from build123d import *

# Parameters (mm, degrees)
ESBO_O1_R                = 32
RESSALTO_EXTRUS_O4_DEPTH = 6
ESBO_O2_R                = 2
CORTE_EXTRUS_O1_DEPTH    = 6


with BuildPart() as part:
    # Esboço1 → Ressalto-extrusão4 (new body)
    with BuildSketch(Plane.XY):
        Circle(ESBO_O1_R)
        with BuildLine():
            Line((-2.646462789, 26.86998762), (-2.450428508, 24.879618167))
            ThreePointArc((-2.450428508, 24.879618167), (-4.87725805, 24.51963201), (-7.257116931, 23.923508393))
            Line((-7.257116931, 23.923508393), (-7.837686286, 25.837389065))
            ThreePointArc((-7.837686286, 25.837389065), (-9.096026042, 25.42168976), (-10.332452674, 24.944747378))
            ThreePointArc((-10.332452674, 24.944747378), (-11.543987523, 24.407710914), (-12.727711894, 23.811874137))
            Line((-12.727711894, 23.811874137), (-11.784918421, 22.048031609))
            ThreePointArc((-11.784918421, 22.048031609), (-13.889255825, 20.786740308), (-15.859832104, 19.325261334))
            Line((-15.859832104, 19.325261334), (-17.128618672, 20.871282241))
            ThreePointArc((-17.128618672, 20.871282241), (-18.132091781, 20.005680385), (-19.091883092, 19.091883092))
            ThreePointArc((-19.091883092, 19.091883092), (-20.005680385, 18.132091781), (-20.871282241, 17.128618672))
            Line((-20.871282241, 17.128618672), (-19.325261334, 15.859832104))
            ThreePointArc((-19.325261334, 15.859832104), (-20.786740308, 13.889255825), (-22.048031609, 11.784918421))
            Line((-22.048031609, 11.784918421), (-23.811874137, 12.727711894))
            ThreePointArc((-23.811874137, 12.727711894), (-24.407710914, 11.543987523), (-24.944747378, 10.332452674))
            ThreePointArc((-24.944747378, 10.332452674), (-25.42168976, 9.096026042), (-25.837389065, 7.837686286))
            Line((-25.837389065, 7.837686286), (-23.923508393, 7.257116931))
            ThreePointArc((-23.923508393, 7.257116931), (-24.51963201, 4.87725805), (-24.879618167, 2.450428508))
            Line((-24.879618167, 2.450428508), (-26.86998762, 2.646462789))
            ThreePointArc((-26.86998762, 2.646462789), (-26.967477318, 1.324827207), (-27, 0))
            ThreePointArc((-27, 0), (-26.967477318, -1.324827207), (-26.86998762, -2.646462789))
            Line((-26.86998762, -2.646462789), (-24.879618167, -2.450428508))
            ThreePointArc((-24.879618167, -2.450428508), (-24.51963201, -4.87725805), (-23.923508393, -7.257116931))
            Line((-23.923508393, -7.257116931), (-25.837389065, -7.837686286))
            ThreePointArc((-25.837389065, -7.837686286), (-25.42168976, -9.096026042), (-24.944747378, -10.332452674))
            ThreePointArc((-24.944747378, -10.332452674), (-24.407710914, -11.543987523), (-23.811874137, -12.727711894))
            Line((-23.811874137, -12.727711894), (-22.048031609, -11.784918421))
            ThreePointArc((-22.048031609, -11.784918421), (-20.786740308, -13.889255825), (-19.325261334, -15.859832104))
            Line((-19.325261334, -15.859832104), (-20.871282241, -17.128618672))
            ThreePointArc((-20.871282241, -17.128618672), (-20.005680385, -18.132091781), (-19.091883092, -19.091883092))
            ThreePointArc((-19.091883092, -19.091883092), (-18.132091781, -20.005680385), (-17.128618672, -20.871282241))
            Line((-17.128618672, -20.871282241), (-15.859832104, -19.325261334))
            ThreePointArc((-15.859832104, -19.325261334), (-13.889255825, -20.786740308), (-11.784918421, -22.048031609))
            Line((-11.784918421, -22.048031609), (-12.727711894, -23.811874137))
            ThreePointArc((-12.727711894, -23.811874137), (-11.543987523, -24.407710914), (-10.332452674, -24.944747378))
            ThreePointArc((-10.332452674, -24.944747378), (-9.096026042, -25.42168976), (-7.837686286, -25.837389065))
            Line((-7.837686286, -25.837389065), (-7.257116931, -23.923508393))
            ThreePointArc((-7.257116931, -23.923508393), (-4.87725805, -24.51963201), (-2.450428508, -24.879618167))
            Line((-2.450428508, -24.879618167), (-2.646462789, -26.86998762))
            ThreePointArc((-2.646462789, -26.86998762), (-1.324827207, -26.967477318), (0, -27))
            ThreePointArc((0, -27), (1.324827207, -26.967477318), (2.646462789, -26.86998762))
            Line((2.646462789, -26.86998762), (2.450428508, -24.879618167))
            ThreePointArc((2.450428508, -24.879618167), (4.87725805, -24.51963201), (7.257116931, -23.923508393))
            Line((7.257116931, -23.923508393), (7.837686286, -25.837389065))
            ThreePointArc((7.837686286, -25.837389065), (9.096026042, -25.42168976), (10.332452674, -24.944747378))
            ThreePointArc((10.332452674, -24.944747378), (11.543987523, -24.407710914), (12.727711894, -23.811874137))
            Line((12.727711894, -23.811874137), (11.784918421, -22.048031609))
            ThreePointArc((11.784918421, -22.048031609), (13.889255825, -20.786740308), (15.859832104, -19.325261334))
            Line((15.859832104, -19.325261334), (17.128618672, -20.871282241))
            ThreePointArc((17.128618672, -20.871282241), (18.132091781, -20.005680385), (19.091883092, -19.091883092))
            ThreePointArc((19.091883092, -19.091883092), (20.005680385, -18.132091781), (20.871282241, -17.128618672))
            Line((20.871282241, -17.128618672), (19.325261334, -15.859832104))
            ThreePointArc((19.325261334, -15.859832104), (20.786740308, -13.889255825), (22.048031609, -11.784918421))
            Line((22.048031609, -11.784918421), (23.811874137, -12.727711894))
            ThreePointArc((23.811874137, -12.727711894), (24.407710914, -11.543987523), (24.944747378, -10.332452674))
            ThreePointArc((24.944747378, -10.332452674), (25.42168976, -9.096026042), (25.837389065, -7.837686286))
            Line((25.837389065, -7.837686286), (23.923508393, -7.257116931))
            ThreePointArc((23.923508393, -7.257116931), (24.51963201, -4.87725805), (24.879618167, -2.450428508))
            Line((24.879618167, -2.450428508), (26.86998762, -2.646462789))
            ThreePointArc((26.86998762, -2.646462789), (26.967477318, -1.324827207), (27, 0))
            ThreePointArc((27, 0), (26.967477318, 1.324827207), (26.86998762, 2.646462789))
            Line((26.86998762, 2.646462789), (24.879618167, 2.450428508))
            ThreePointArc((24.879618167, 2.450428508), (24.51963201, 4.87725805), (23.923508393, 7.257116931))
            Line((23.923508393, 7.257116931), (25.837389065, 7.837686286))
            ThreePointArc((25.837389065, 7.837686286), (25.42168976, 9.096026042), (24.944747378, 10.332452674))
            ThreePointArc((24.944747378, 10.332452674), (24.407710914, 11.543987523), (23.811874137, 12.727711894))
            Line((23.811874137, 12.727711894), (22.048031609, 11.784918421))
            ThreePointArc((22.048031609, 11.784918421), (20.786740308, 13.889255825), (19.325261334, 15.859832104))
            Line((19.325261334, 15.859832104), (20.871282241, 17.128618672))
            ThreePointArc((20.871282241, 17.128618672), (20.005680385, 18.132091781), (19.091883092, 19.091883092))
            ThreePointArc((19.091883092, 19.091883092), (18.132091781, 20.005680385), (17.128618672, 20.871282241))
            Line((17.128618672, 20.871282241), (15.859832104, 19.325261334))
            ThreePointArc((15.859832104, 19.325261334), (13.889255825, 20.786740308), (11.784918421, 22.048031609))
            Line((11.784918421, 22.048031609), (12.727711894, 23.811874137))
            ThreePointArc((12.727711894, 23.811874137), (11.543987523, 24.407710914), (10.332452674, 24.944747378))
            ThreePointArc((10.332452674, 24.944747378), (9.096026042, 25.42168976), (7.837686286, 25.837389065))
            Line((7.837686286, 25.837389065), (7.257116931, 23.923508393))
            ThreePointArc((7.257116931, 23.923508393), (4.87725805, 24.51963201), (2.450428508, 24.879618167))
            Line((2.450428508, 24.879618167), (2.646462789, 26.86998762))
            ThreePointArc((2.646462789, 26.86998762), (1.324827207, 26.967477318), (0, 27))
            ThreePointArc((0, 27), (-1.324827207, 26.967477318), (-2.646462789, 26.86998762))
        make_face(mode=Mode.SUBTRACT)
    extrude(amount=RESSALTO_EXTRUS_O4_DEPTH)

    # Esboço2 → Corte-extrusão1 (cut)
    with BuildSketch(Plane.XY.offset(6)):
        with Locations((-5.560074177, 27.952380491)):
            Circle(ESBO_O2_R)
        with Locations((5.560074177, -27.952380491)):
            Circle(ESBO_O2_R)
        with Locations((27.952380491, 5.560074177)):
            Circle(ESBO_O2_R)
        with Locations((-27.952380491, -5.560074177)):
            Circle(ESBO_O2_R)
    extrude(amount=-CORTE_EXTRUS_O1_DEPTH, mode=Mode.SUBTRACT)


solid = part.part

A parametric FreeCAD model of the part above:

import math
import FreeCAD as App
import Part
import Sketcher

V = App.Vector

doc = App.newDocument("Part")
body = doc.addObject("PartDesign::Body", "Body")

# Sketch on XY plane
sketch1 = body.newObject("Sketcher::SketchObject", "Sketch")
sketch1.AttachmentSupport = (doc.getObject("XY_Plane"), [""])
sketch1.MapMode = "FlatFace"
sketch1.addGeometry(Part.Circle(V(0, 0, 0), V(0, 0, 1), 32), False)
sketch1.addGeometry(Part.LineSegment(V(-2.5, 24.9, 0), V(-2.6, 26.9, 0)), False)
sketch1.addGeometry(Part.ArcOfCircle(Part.Circle(V(0, 0, 0), V(0, 0, 1), 27), math.radians(90), math.radians(95.63)), False)
sketch1.addGeometry(Part.ArcOfCircle(Part.Circle(V(0, 0, 0), V(0, 0, 1), 27), math.radians(84.37), math.radians(90)), False)
sketch1.addGeometry(Part.LineSegment(V(2.6, 26.9, 0), V(2.5, 24.9, 0)), False)
sketch1.addGeometry(Part.ArcOfCircle(Part.Circle(V(0, 0, 0), V(0, 0, 1), 25), math.radians(73.12), math.radians(84.37)), False)
sketch1.addGeometry(Part.LineSegment(V(7.3, 23.9, 0), V(7.8, 25.8, 0)), False)
sketch1.addGeometry(Part.ArcOfCircle(Part.Circle(V(0, 0, 0), V(0, 0, 1), 27), math.radians(67.5), math.radians(73.12)), False)
sketch1.addGeometry(Part.ArcOfCircle(Part.Circle(V(0, 0, 0), V(0, 0, 1), 27), math.radians(61.87), math.radians(67.5)), False)
sketch1.addGeometry(Part.LineSegment(V(12.7, 23.8, 0), V(11.8, 22, 0)), False)
sketch1.addGeometry(Part.ArcOfCircle(Part.Circle(V(0, 0, 0), V(0, 0, 1), 25), math.radians(50.62), math.radians(61.87)), False)
sketch1.addGeometry(Part.LineSegment(V(15.9, 19.3, 0), V(17.1, 20.9, 0)), False)
sketch1.addGeometry(Part.ArcOfCircle(Part.Circle(V(0, 0, 0), V(0, 0, 1), 27), math.radians(45), math.radians(50.63)), False)
sketch1.addGeometry(Part.ArcOfCircle(Part.Circle(V(0, 0, 0), V(0, 0, 1), 27), math.radians(39.37), math.radians(45)), False)
sketch1.addGeometry(Part.LineSegment(V(20.9, 17.1, 0), V(19.3, 15.9, 0)), False)
sketch1.addGeometry(Part.ArcOfCircle(Part.Circle(V(0, 0, 0), V(0, 0, 1), 25), math.radians(28.13), math.radians(39.38)), False)
sketch1.addGeometry(Part.LineSegment(V(22, 11.8, 0), V(23.8, 12.7, 0)), False)
sketch1.addGeometry(Part.ArcOfCircle(Part.Circle(V(0, 0, 0), V(0, 0, 1), 27), math.radians(22.5), math.radians(28.13)), False)
sketch1.addGeometry(Part.ArcOfCircle(Part.Circle(V(0, 0, 0), V(0, 0, 1), 27), math.radians(16.88), math.radians(22.5)), False)
sketch1.addGeometry(Part.LineSegment(V(25.8, 7.8, 0), V(23.9, 7.3, 0)), False)
sketch1.addGeometry(Part.ArcOfCircle(Part.Circle(V(0, 0, 0), V(0, 0, 1), 25), math.radians(5.63), math.radians(16.88)), False)
sketch1.addGeometry(Part.LineSegment(V(24.9, 2.5, 0), V(26.9, 2.6, 0)), False)
sketch1.addGeometry(Part.ArcOfCircle(Part.Circle(V(0, 0, 0), V(0, 0, 1), 27), math.radians(0), math.radians(5.63)), False)
sketch1.addGeometry(Part.ArcOfCircle(Part.Circle(V(0, 0, 0), V(0, 0, 1), 27), math.radians(-5.63), math.radians(0)), False)
sketch1.addGeometry(Part.LineSegment(V(26.9, -2.6, 0), V(24.9, -2.5, 0)), False)
sketch1.addGeometry(Part.ArcOfCircle(Part.Circle(V(0, 0, 0), V(0, 0, 1), 25), math.radians(-16.88), math.radians(-5.63)), False)
sketch1.addGeometry(Part.LineSegment(V(23.9, -7.3, 0), V(25.8, -7.8, 0)), False)
sketch1.addGeometry(Part.ArcOfCircle(Part.Circle(V(0, 0, 0), V(0, 0, 1), 27), math.radians(-22.5), math.radians(-16.88)), False)
sketch1.addGeometry(Part.ArcOfCircle(Part.Circle(V(0, 0, 0), V(0, 0, 1), 27), math.radians(-28.13), math.radians(-22.5)), False)
sketch1.addGeometry(Part.LineSegment(V(23.8, -12.7, 0), V(22, -11.8, 0)), False)
sketch1.addGeometry(Part.ArcOfCircle(Part.Circle(V(0, 0, 0), V(0, 0, 1), 25), math.radians(-39.38), math.radians(-28.13)), False)
sketch1.addGeometry(Part.LineSegment(V(19.3, -15.9, 0), V(20.9, -17.1, 0)), False)
sketch1.addGeometry(Part.ArcOfCircle(Part.Circle(V(0, 0, 0), V(0, 0, 1), 27), math.radians(-45), math.radians(-39.37)), False)
sketch1.addGeometry(Part.ArcOfCircle(Part.Circle(V(0, 0, 0), V(0, 0, 1), 27), math.radians(-50.63), math.radians(-45)), False)
sketch1.addGeometry(Part.LineSegment(V(17.1, -20.9, 0), V(15.9, -19.3, 0)), False)
sketch1.addGeometry(Part.ArcOfCircle(Part.Circle(V(0, 0, 0), V(0, 0, 1), 25), math.radians(-61.87), math.radians(-50.62)), False)
sketch1.addGeometry(Part.LineSegment(V(11.8, -22, 0), V(12.7, -23.8, 0)), False)
sketch1.addGeometry(Part.ArcOfCircle(Part.Circle(V(0, 0, 0), V(0, 0, 1), 27), math.radians(-67.5), math.radians(-61.87)), False)
sketch1.addGeometry(Part.ArcOfCircle(Part.Circle(V(0, 0, 0), V(0, 0, 1), 27), math.radians(-73.12), math.radians(-67.5)), False)
sketch1.addGeometry(Part.LineSegment(V(7.8, -25.8, 0), V(7.3, -23.9, 0)), False)
sketch1.addGeometry(Part.ArcOfCircle(Part.Circle(V(0, 0, 0), V(0, 0, 1), 25), math.radians(-84.37), math.radians(-73.12)), False)
sketch1.addGeometry(Part.LineSegment(V(2.5, -24.9, 0), V(2.6, -26.9, 0)), False)
sketch1.addGeometry(Part.ArcOfCircle(Part.Circle(V(0, 0, 0), V(0, 0, 1), 27), math.radians(-90), math.radians(-84.37)), False)
sketch1.addGeometry(Part.ArcOfCircle(Part.Circle(V(0, 0, 0), V(0, 0, 1), 27), math.radians(-95.63), math.radians(-90)), False)
sketch1.addGeometry(Part.LineSegment(V(-2.6, -26.9, 0), V(-2.5, -24.9, 0)), False)
sketch1.addGeometry(Part.ArcOfCircle(Part.Circle(V(0, 0, 0), V(0, 0, 1), 25), math.radians(-106.88), math.radians(-95.63)), False)
sketch1.addGeometry(Part.LineSegment(V(-7.3, -23.9, 0), V(-7.8, -25.8, 0)), False)
sketch1.addGeometry(Part.ArcOfCircle(Part.Circle(V(0, 0, 0), V(0, 0, 1), 27), math.radians(-112.5), math.radians(-106.88)), False)
sketch1.addGeometry(Part.ArcOfCircle(Part.Circle(V(0, 0, 0), V(0, 0, 1), 27), math.radians(-118.13), math.radians(-112.5)), False)
sketch1.addGeometry(Part.LineSegment(V(-12.7, -23.8, 0), V(-11.8, -22, 0)), False)
sketch1.addGeometry(Part.ArcOfCircle(Part.Circle(V(0, 0, 0), V(0, 0, 1), 25), math.radians(-129.38), math.radians(-118.13)), False)
sketch1.addGeometry(Part.LineSegment(V(-15.9, -19.3, 0), V(-17.1, -20.9, 0)), False)
sketch1.addGeometry(Part.ArcOfCircle(Part.Circle(V(0, 0, 0), V(0, 0, 1), 27), math.radians(-135), math.radians(-129.37)), False)
sketch1.addGeometry(Part.ArcOfCircle(Part.Circle(V(0, 0, 0), V(0, 0, 1), 27), math.radians(-140.63), math.radians(-135)), False)
sketch1.addGeometry(Part.LineSegment(V(-20.9, -17.1, 0), V(-19.3, -15.9, 0)), False)
sketch1.addGeometry(Part.ArcOfCircle(Part.Circle(V(0, 0, 0), V(0, 0, 1), 25), math.radians(-151.87), math.radians(-140.62)), False)
sketch1.addGeometry(Part.LineSegment(V(-22, -11.8, 0), V(-23.8, -12.7, 0)), False)
sketch1.addGeometry(Part.ArcOfCircle(Part.Circle(V(0, 0, 0), V(0, 0, 1), 27), math.radians(-157.5), math.radians(-151.87)), False)
sketch1.addGeometry(Part.ArcOfCircle(Part.Circle(V(0, 0, 0), V(0, 0, 1), 27), math.radians(-163.12), math.radians(-157.5)), False)
sketch1.addGeometry(Part.LineSegment(V(-25.8, -7.8, 0), V(-23.9, -7.3, 0)), False)
sketch1.addGeometry(Part.ArcOfCircle(Part.Circle(V(0, 0, 0), V(0, 0, 1), 25), math.radians(-174.37), math.radians(-163.12)), False)
sketch1.addGeometry(Part.LineSegment(V(-24.9, -2.5, 0), V(-26.9, -2.6, 0)), False)
sketch1.addGeometry(Part.ArcOfCircle(Part.Circle(V(0, 0, 0), V(0, 0, 1), 27), math.radians(180), math.radians(185.63)), False)
sketch1.addGeometry(Part.ArcOfCircle(Part.Circle(V(0, 0, 0), V(0, 0, 1), 27), math.radians(174.37), math.radians(180)), False)
sketch1.addGeometry(Part.LineSegment(V(-26.9, 2.6, 0), V(-24.9, 2.5, 0)), False)
sketch1.addGeometry(Part.ArcOfCircle(Part.Circle(V(0, 0, 0), V(0, 0, 1), 25), math.radians(163.12), math.radians(174.37)), False)
sketch1.addGeometry(Part.LineSegment(V(-23.9, 7.3, 0), V(-25.8, 7.8, 0)), False)
sketch1.addGeometry(Part.ArcOfCircle(Part.Circle(V(0, 0, 0), V(0, 0, 1), 27), math.radians(157.5), math.radians(163.12)), False)
sketch1.addGeometry(Part.ArcOfCircle(Part.Circle(V(0, 0, 0), V(0, 0, 1), 27), math.radians(151.87), math.radians(157.5)), False)
sketch1.addGeometry(Part.LineSegment(V(-23.8, 12.7, 0), V(-22, 11.8, 0)), False)
sketch1.addGeometry(Part.ArcOfCircle(Part.Circle(V(0, 0, 0), V(0, 0, 1), 25), math.radians(140.62), math.radians(151.87)), False)
sketch1.addGeometry(Part.LineSegment(V(-19.3, 15.9, 0), V(-20.9, 17.1, 0)), False)
sketch1.addGeometry(Part.ArcOfCircle(Part.Circle(V(0, 0, 0), V(0, 0, 1), 27), math.radians(135), math.radians(140.63)), False)
sketch1.addGeometry(Part.ArcOfCircle(Part.Circle(V(0, 0, 0), V(0, 0, 1), 27), math.radians(129.37), math.radians(135)), False)
sketch1.addGeometry(Part.LineSegment(V(-17.1, 20.9, 0), V(-15.9, 19.3, 0)), False)
sketch1.addGeometry(Part.ArcOfCircle(Part.Circle(V(0, 0, 0), V(0, 0, 1), 25), math.radians(118.13), math.radians(129.38)), False)
sketch1.addGeometry(Part.LineSegment(V(-11.8, 22, 0), V(-12.7, 23.8, 0)), False)
sketch1.addGeometry(Part.ArcOfCircle(Part.Circle(V(0, 0, 0), V(0, 0, 1), 27), math.radians(112.5), math.radians(118.13)), False)
sketch1.addGeometry(Part.ArcOfCircle(Part.Circle(V(0, 0, 0), V(0, 0, 1), 27), math.radians(106.88), math.radians(112.5)), False)
sketch1.addGeometry(Part.LineSegment(V(-7.8, 25.8, 0), V(-7.3, 23.9, 0)), False)
sketch1.addGeometry(Part.ArcOfCircle(Part.Circle(V(0, 0, 0), V(0, 0, 1), 25), math.radians(95.63), math.radians(106.88)), False)
sketch1.addConstraint(Sketcher.Constraint("Coincident", 1, 2, 2, 2))
sketch1.addConstraint(Sketcher.Constraint("Tangent", 2, 1, 3, 2))
sketch1.addConstraint(Sketcher.Constraint("Coincident", 3, 1, 4, 1))
sketch1.addConstraint(Sketcher.Constraint("Coincident", 4, 2, 5, 2))
sketch1.addConstraint(Sketcher.Constraint("Coincident", 5, 1, 6, 1))
sketch1.addConstraint(Sketcher.Constraint("Coincident", 6, 2, 7, 2))
sketch1.addConstraint(Sketcher.Constraint("Tangent", 7, 1, 8, 2))
sketch1.addConstraint(Sketcher.Constraint("Coincident", 8, 1, 9, 1))
sketch1.addConstraint(Sketcher.Constraint("Coincident", 9, 2, 10, 2))
sketch1.addConstraint(Sketcher.Constraint("Coincident", 10, 1, 11, 1))
sketch1.addConstraint(Sketcher.Constraint("Coincident", 11, 2, 12, 2))
sketch1.addConstraint(Sketcher.Constraint("Tangent", 12, 1, 13, 2))
sketch1.addConstraint(Sketcher.Constraint("Coincident", 13, 1, 14, 1))
sketch1.addConstraint(Sketcher.Constraint("Coincident", 14, 2, 15, 2))
sketch1.addConstraint(Sketcher.Constraint("Coincident", 15, 1, 16, 1))
sketch1.addConstraint(Sketcher.Constraint("Coincident", 16, 2, 17, 2))
sketch1.addConstraint(Sketcher.Constraint("Tangent", 17, 1, 18, 2))
sketch1.addConstraint(Sketcher.Constraint("Coincident", 18, 1, 19, 1))
sketch1.addConstraint(Sketcher.Constraint("Coincident", 19, 2, 20, 2))
sketch1.addConstraint(Sketcher.Constraint("Coincident", 20, 1, 21, 1))
sketch1.addConstraint(Sketcher.Constraint("Coincident", 21, 2, 22, 2))
sketch1.addConstraint(Sketcher.Constraint("Tangent", 22, 1, 23, 2))
sketch1.addConstraint(Sketcher.Constraint("Coincident", 23, 1, 24, 1))
sketch1.addConstraint(Sketcher.Constraint("Coincident", 24, 2, 25, 2))
sketch1.addConstraint(Sketcher.Constraint("Coincident", 25, 1, 26, 1))
sketch1.addConstraint(Sketcher.Constraint("Coincident", 26, 2, 27, 2))
sketch1.addConstraint(Sketcher.Constraint("Tangent", 27, 1, 28, 2))
sketch1.addConstraint(Sketcher.Constraint("Coincident", 28, 1, 29, 1))
sketch1.addConstraint(Sketcher.Constraint("Coincident", 29, 2, 30, 2))
sketch1.addConstraint(Sketcher.Constraint("Coincident", 30, 1, 31, 1))
sketch1.addConstraint(Sketcher.Constraint("Coincident", 31, 2, 32, 2))
sketch1.addConstraint(Sketcher.Constraint("Tangent", 32, 1, 33, 2))
sketch1.addConstraint(Sketcher.Constraint("Coincident", 33, 1, 34, 1))
sketch1.addConstraint(Sketcher.Constraint("Coincident", 34, 2, 35, 2))
sketch1.addConstraint(Sketcher.Constraint("Coincident", 35, 1, 36, 1))
sketch1.addConstraint(Sketcher.Constraint("Coincident", 36, 2, 37, 2))
sketch1.addConstraint(Sketcher.Constraint("Tangent", 37, 1, 38, 2))
sketch1.addConstraint(Sketcher.Constraint("Coincident", 38, 1, 39, 1))
sketch1.addConstraint(Sketcher.Constraint("Coincident", 39, 2, 40, 2))
sketch1.addConstraint(Sketcher.Constraint("Coincident", 40, 1, 41, 1))
sketch1.addConstraint(Sketcher.Constraint("Coincident", 41, 2, 42, 2))
sketch1.addConstraint(Sketcher.Constraint("Tangent", 42, 1, 43, 2))
sketch1.addConstraint(Sketcher.Constraint("Coincident", 43, 1, 44, 1))
sketch1.addConstraint(Sketcher.Constraint("Coincident", 44, 2, 45, 2))
sketch1.addConstraint(Sketcher.Constraint("Coincident", 45, 1, 46, 1))
sketch1.addConstraint(Sketcher.Constraint("Coincident", 46, 2, 47, 2))
sketch1.addConstraint(Sketcher.Constraint("Tangent", 47, 1, 48, 2))
sketch1.addConstraint(Sketcher.Constraint("Coincident", 48, 1, 49, 1))
sketch1.addConstraint(Sketcher.Constraint("Coincident", 49, 2, 50, 2))
sketch1.addConstraint(Sketcher.Constraint("Coincident", 50, 1, 51, 1))
sketch1.addConstraint(Sketcher.Constraint("Coincident", 51, 2, 52, 2))
sketch1.addConstraint(Sketcher.Constraint("Tangent", 52, 1, 53, 2))
sketch1.addConstraint(Sketcher.Constraint("Coincident", 53, 1, 54, 1))
sketch1.addConstraint(Sketcher.Constraint("Coincident", 54, 2, 55, 2))
sketch1.addConstraint(Sketcher.Constraint("Coincident", 55, 1, 56, 1))
sketch1.addConstraint(Sketcher.Constraint("Coincident", 56, 2, 57, 2))
sketch1.addConstraint(Sketcher.Constraint("Tangent", 57, 1, 58, 2))
sketch1.addConstraint(Sketcher.Constraint("Coincident", 58, 1, 59, 1))
sketch1.addConstraint(Sketcher.Constraint("Coincident", 59, 2, 60, 2))
sketch1.addConstraint(Sketcher.Constraint("Coincident", 60, 1, 61, 1))
sketch1.addConstraint(Sketcher.Constraint("Coincident", 61, 2, 62, 2))
sketch1.addConstraint(Sketcher.Constraint("Tangent", 62, 1, 63, 2))
sketch1.addConstraint(Sketcher.Constraint("Coincident", 63, 1, 64, 1))
sketch1.addConstraint(Sketcher.Constraint("Coincident", 64, 2, 65, 2))
sketch1.addConstraint(Sketcher.Constraint("Coincident", 65, 1, 66, 1))
sketch1.addConstraint(Sketcher.Constraint("Coincident", 66, 2, 67, 2))
sketch1.addConstraint(Sketcher.Constraint("Tangent", 67, 1, 68, 2))
sketch1.addConstraint(Sketcher.Constraint("Coincident", 68, 1, 69, 1))
sketch1.addConstraint(Sketcher.Constraint("Coincident", 69, 2, 70, 2))
sketch1.addConstraint(Sketcher.Constraint("Coincident", 70, 1, 71, 1))
sketch1.addConstraint(Sketcher.Constraint("Coincident", 71, 2, 72, 2))
sketch1.addConstraint(Sketcher.Constraint("Tangent", 72, 1, 73, 2))
sketch1.addConstraint(Sketcher.Constraint("Coincident", 73, 1, 74, 1))
sketch1.addConstraint(Sketcher.Constraint("Coincident", 74, 2, 75, 2))
sketch1.addConstraint(Sketcher.Constraint("Coincident", 75, 1, 76, 1))
sketch1.addConstraint(Sketcher.Constraint("Coincident", 76, 2, 77, 2))
sketch1.addConstraint(Sketcher.Constraint("Tangent", 77, 1, 78, 2))
sketch1.addConstraint(Sketcher.Constraint("Coincident", 78, 1, 79, 1))
sketch1.addConstraint(Sketcher.Constraint("Coincident", 79, 2, 80, 2))
sketch1.addConstraint(Sketcher.Constraint("Coincident", 80, 1, 1, 1))
sketch1.addConstraint(Sketcher.Constraint("Coincident", 0, 3, -1, 1))
sketch1.addConstraint(Sketcher.Constraint("Coincident", 2, 3, -1, 1))
sketch1.addConstraint(Sketcher.Constraint("Coincident", 5, 3, -1, 1))
sketch1.addConstraint(Sketcher.Constraint("Coincident", 7, 3, -1, 1))
sketch1.addConstraint(Sketcher.Constraint("Coincident", 10, 3, -1, 1))
sketch1.addConstraint(Sketcher.Constraint("Coincident", 12, 3, -1, 1))
sketch1.addConstraint(Sketcher.Constraint("Coincident", 15, 3, -1, 1))
sketch1.addConstraint(Sketcher.Constraint("Coincident", 17, 3, -1, 1))
sketch1.addConstraint(Sketcher.Constraint("Coincident", 20, 3, -1, 1))
sketch1.addConstraint(Sketcher.Constraint("Coincident", 22, 3, -1, 1))
sketch1.addConstraint(Sketcher.Constraint("Coincident", 25, 3, -1, 1))
sketch1.addConstraint(Sketcher.Constraint("Coincident", 27, 3, -1, 1))
sketch1.addConstraint(Sketcher.Constraint("Coincident", 30, 3, -1, 1))
sketch1.addConstraint(Sketcher.Constraint("Coincident", 32, 3, -1, 1))
sketch1.addConstraint(Sketcher.Constraint("Coincident", 35, 3, -1, 1))
sketch1.addConstraint(Sketcher.Constraint("Coincident", 37, 3, -1, 1))
sketch1.addConstraint(Sketcher.Constraint("Coincident", 40, 3, -1, 1))
sketch1.addConstraint(Sketcher.Constraint("Coincident", 42, 3, -1, 1))
sketch1.addConstraint(Sketcher.Constraint("Coincident", 45, 3, -1, 1))
sketch1.addConstraint(Sketcher.Constraint("Coincident", 47, 3, -1, 1))
sketch1.addConstraint(Sketcher.Constraint("Coincident", 50, 3, -1, 1))
sketch1.addConstraint(Sketcher.Constraint("Coincident", 52, 3, -1, 1))
sketch1.addConstraint(Sketcher.Constraint("Coincident", 55, 3, -1, 1))
sketch1.addConstraint(Sketcher.Constraint("Coincident", 57, 3, -1, 1))
sketch1.addConstraint(Sketcher.Constraint("Coincident", 60, 3, -1, 1))
sketch1.addConstraint(Sketcher.Constraint("Coincident", 62, 3, -1, 1))
sketch1.addConstraint(Sketcher.Constraint("Coincident", 65, 3, -1, 1))
sketch1.addConstraint(Sketcher.Constraint("Coincident", 67, 3, -1, 1))
sketch1.addConstraint(Sketcher.Constraint("Coincident", 70, 3, -1, 1))
sketch1.addConstraint(Sketcher.Constraint("Coincident", 72, 3, -1, 1))
sketch1.addConstraint(Sketcher.Constraint("Coincident", 75, 3, -1, 1))
sketch1.addConstraint(Sketcher.Constraint("Coincident", 77, 3, -1, 1))
sketch1.addConstraint(Sketcher.Constraint("Coincident", 80, 3, -1, 1))
sketch1.addConstraint(Sketcher.Constraint("Equal", 2, 3))
sketch1.addConstraint(Sketcher.Constraint("Equal", 3, 7))
sketch1.addConstraint(Sketcher.Constraint("Equal", 7, 8))
sketch1.addConstraint(Sketcher.Constraint("Equal", 5, 10))
sketch1.addConstraint(Sketcher.Constraint("Equal", 8, 12))
sketch1.addConstraint(Sketcher.Constraint("Equal", 12, 13))
sketch1.addConstraint(Sketcher.Constraint("Equal", 10, 15))
sketch1.addConstraint(Sketcher.Constraint("Equal", 13, 17))
sketch1.addConstraint(Sketcher.Constraint("Equal", 17, 18))
sketch1.addConstraint(Sketcher.Constraint("Equal", 15, 20))
sketch1.addConstraint(Sketcher.Constraint("Equal", 18, 22))
sketch1.addConstraint(Sketcher.Constraint("Equal", 22, 23))
sketch1.addConstraint(Sketcher.Constraint("Equal", 20, 25))
sketch1.addConstraint(Sketcher.Constraint("Equal", 23, 27))
sketch1.addConstraint(Sketcher.Constraint("Equal", 27, 28))
sketch1.addConstraint(Sketcher.Constraint("Equal", 25, 30))
sketch1.addConstraint(Sketcher.Constraint("Equal", 28, 32))
sketch1.addConstraint(Sketcher.Constraint("Equal", 32, 33))
sketch1.addConstraint(Sketcher.Constraint("Equal", 30, 35))
sketch1.addConstraint(Sketcher.Constraint("Equal", 33, 37))
sketch1.addConstraint(Sketcher.Constraint("Equal", 37, 38))
sketch1.addConstraint(Sketcher.Constraint("Equal", 35, 40))
sketch1.addConstraint(Sketcher.Constraint("Equal", 38, 42))
sketch1.addConstraint(Sketcher.Constraint("Equal", 42, 43))
sketch1.addConstraint(Sketcher.Constraint("Equal", 40, 45))
sketch1.addConstraint(Sketcher.Constraint("Equal", 43, 47))
sketch1.addConstraint(Sketcher.Constraint("Equal", 47, 48))
sketch1.addConstraint(Sketcher.Constraint("Equal", 45, 50))
sketch1.addConstraint(Sketcher.Constraint("Equal", 48, 52))
sketch1.addConstraint(Sketcher.Constraint("Equal", 52, 53))
sketch1.addConstraint(Sketcher.Constraint("Equal", 50, 55))
sketch1.addConstraint(Sketcher.Constraint("Equal", 53, 57))
sketch1.addConstraint(Sketcher.Constraint("Equal", 57, 58))
sketch1.addConstraint(Sketcher.Constraint("Equal", 55, 60))
sketch1.addConstraint(Sketcher.Constraint("Equal", 58, 62))
sketch1.addConstraint(Sketcher.Constraint("Equal", 62, 63))
sketch1.addConstraint(Sketcher.Constraint("Equal", 60, 65))
sketch1.addConstraint(Sketcher.Constraint("Equal", 63, 67))
sketch1.addConstraint(Sketcher.Constraint("Equal", 67, 68))
sketch1.addConstraint(Sketcher.Constraint("Equal", 65, 70))
sketch1.addConstraint(Sketcher.Constraint("Equal", 68, 72))
sketch1.addConstraint(Sketcher.Constraint("Equal", 72, 73))
sketch1.addConstraint(Sketcher.Constraint("Equal", 70, 75))
sketch1.addConstraint(Sketcher.Constraint("Equal", 73, 77))
sketch1.addConstraint(Sketcher.Constraint("Equal", 77, 78))
sketch1.addConstraint(Sketcher.Constraint("Equal", 75, 80))
sketch1.addConstraint(Sketcher.Constraint("PointOnObject", 2, 1, -2))
sketch1.addConstraint(Sketcher.Constraint("PointOnObject", 22, 1, -1))
sketch1.addConstraint(Sketcher.Constraint("PointOnObject", 42, 1, -2))
sketch1.addConstraint(Sketcher.Constraint("PointOnObject", 62, 1, -1))
sketch1.addConstraint(Sketcher.Constraint("Perpendicular", 1, 21))
sketch1.addConstraint(Sketcher.Constraint("Perpendicular", 4, 24))
sketch1.addConstraint(Sketcher.Constraint("Perpendicular", 6, 26))
sketch1.addConstraint(Sketcher.Constraint("Perpendicular", 9, 29))
sketch1.addConstraint(Sketcher.Constraint("Perpendicular", 11, 31))
sketch1.addConstraint(Sketcher.Constraint("Perpendicular", 14, 34))
sketch1.addConstraint(Sketcher.Constraint("Perpendicular", 16, 36))
sketch1.addConstraint(Sketcher.Constraint("Perpendicular", 19, 39))
sketch1.addConstraint(Sketcher.Constraint("Perpendicular", 21, 41))
sketch1.addConstraint(Sketcher.Constraint("Perpendicular", 24, 44))
sketch1.addConstraint(Sketcher.Constraint("Perpendicular", 26, 46))
sketch1.addConstraint(Sketcher.Constraint("Perpendicular", 29, 49))
sketch1.addConstraint(Sketcher.Constraint("Perpendicular", 31, 51))
sketch1.addConstraint(Sketcher.Constraint("Perpendicular", 34, 54))
sketch1.addConstraint(Sketcher.Constraint("Perpendicular", 36, 56))
sketch1.addConstraint(Sketcher.Constraint("Perpendicular", 39, 59))
sketch1.addConstraint(Sketcher.Constraint("Perpendicular", 41, 61))
sketch1.addConstraint(Sketcher.Constraint("Perpendicular", 44, 64))
sketch1.addConstraint(Sketcher.Constraint("Perpendicular", 46, 66))
sketch1.addConstraint(Sketcher.Constraint("Perpendicular", 49, 69))
sketch1.addConstraint(Sketcher.Constraint("Perpendicular", 51, 71))
sketch1.addConstraint(Sketcher.Constraint("Perpendicular", 54, 74))
sketch1.addConstraint(Sketcher.Constraint("Perpendicular", 56, 76))
sketch1.addConstraint(Sketcher.Constraint("Perpendicular", 59, 79))
sketch1.addConstraint(Sketcher.Constraint("Horizontal", 1, 2, 3, 1))
sketch1.addConstraint(Sketcher.Constraint("Horizontal", 41, 2, 43, 1))
sketch1.addConstraint(Sketcher.Constraint("Horizontal", 40, 1, 44, 2))
sketch1.addConstraint(Sketcher.Constraint("Horizontal", 39, 2, 45, 1))
sketch1.addConstraint(Sketcher.Constraint("Horizontal", 38, 1, 46, 2))
sketch1.addConstraint(Sketcher.Constraint("Horizontal", 37, 1, 47, 1))
sketch1.addConstraint(Sketcher.Constraint("Horizontal", 36, 2, 48, 1))
sketch1.addConstraint(Sketcher.Constraint("Horizontal", 35, 1, 49, 2))
sketch1.addConstraint(Sketcher.Constraint("Horizontal", 34, 2, 50, 1))
sketch1.addConstraint(Sketcher.Constraint("Horizontal", 33, 1, 51, 2))
sketch1.addConstraint(Sketcher.Constraint("Horizontal", 32, 1, 52, 1))
sketch1.addConstraint(Sketcher.Constraint("Horizontal", 31, 2, 53, 1))
sketch1.addConstraint(Sketcher.Constraint("Horizontal", 29, 2, 55, 1))
sketch1.addConstraint(Sketcher.Constraint("Horizontal", 27, 1, 57, 1))
sketch1.addConstraint(Sketcher.Constraint("Horizontal", 26, 2, 58, 1))
sketch1.addConstraint(Sketcher.Constraint("Horizontal", 24, 2, 60, 1))
sketch1.addConstraint(Sketcher.Constraint("Horizontal", 21, 2, 63, 1))
sketch1.addConstraint(Sketcher.Constraint("Horizontal", 19, 2, 65, 1))
sketch1.addConstraint(Sketcher.Constraint("Horizontal", 17, 1, 67, 1))
sketch1.addConstraint(Sketcher.Constraint("Horizontal", 16, 2, 68, 1))
sketch1.addConstraint(Sketcher.Constraint("Horizontal", 14, 2, 70, 1))
sketch1.addConstraint(Sketcher.Constraint("Horizontal", 12, 1, 72, 1))
sketch1.addConstraint(Sketcher.Constraint("Horizontal", 11, 2, 73, 1))
sketch1.addConstraint(Sketcher.Constraint("Horizontal", 9, 2, 75, 1))
sketch1.addConstraint(Sketcher.Constraint("Horizontal", 7, 1, 77, 1))
sketch1.addConstraint(Sketcher.Constraint("Horizontal", 6, 2, 78, 1))
sketch1.addConstraint(Sketcher.Constraint("Vertical", 21, 2, 23, 1))
sketch1.addConstraint(Sketcher.Constraint("Vertical", 19, 2, 25, 1))
sketch1.addConstraint(Sketcher.Constraint("Vertical", 17, 1, 27, 1))
sketch1.addConstraint(Sketcher.Constraint("Vertical", 16, 2, 28, 1))
sketch1.addConstraint(Sketcher.Constraint("Vertical", 14, 2, 30, 1))
sketch1.addConstraint(Sketcher.Constraint("Vertical", 12, 1, 32, 1))
sketch1.addConstraint(Sketcher.Constraint("Vertical", 11, 2, 33, 1))
sketch1.addConstraint(Sketcher.Constraint("Vertical", 9, 2, 35, 1))
sketch1.addConstraint(Sketcher.Constraint("Vertical", 7, 1, 37, 1))
sketch1.addConstraint(Sketcher.Constraint("Vertical", 6, 2, 38, 1))
sketch1.addConstraint(Sketcher.Constraint("Vertical", 4, 2, 40, 1))
sketch1.addConstraint(Sketcher.Constraint("Diameter", 0, 64.0))
sketch1.addConstraint(Sketcher.Constraint("Radius", 2, 27.0))
sketch1.addConstraint(Sketcher.Constraint("Radius", 5, 25.0))
sketch1.addConstraint(Sketcher.Constraint("DistanceX", -1, 1, 4, 2, 2.450429))
sketch1.addConstraint(Sketcher.Constraint("DistanceY", -1, 1, 5, 1, 23.923508))
sketch1.addConstraint(Sketcher.Constraint("DistanceY", -1, 1, 6, 2, 25.837389))
sketch1.addConstraint(Sketcher.Constraint("DistanceX", -1, 1, 8, 1, 12.727712))
sketch1.addConstraint(Sketcher.Constraint("DistanceX", -1, 1, 9, 2, 11.784918))
sketch1.addConstraint(Sketcher.Constraint("DistanceY", -1, 1, 10, 1, 19.325261))
sketch1.addConstraint(Sketcher.Constraint("DistanceX", -1, 1, 11, 2, 17.128619))
sketch1.addConstraint(Sketcher.Constraint("DistanceY", -1, 1, 13, 1, 17.128619))
sketch1.addConstraint(Sketcher.Constraint("DistanceX", -1, 1, 15, 1, 22.048032))
sketch1.addConstraint(Sketcher.Constraint("DistanceX", -1, 1, 18, 1, 25.837389))
sketch1.addConstraint(Sketcher.Constraint("DistanceX", -1, 1, 20, 1, 24.879618))
sketch1.addConstraint(Sketcher.Constraint("DistanceX", 1, 2, -1, 1, 2.646463))
sketch1.addConstraint(Sketcher.Constraint("DistanceX", -1, 1, 7, 1, 10.332453))
sketch1.addConstraint(Sketcher.Constraint("DistanceX", -1, 1, 12, 1, 19.091883))
sketch1.addConstraint(Sketcher.Constraint("DistanceX", -1, 1, 17, 1, 24.944747))
pad1 = body.newObject("PartDesign::Pad", "Pad")
pad1.Profile = sketch1
pad1.Length = 6

# Sketch on XY plane
sketch2 = body.newObject("Sketcher::SketchObject", "Sketch001")
sketch2.AttachmentSupport = (doc.getObject("XY_Plane"), [""])
sketch2.MapMode = "FlatFace"
sketch2.AttachmentOffset = App.Placement(V(0, 0, 6), App.Rotation())
sketch2.addGeometry(Part.Circle(V(-5.6, 28, 0), V(0, 0, 1), 2), False)
sketch2.addGeometry(Part.Circle(V(5.6, -28, 0), V(0, 0, 1), 2), False)
sketch2.addGeometry(Part.Circle(V(28, 5.6, 0), V(0, 0, 1), 2), False)
sketch2.addGeometry(Part.Circle(V(-28, -5.6, 0), V(0, 0, 1), 2), False)
sketch2.addConstraint(Sketcher.Constraint("Equal", 0, 1))
sketch2.addConstraint(Sketcher.Constraint("Equal", 1, 2))
sketch2.addConstraint(Sketcher.Constraint("Equal", 2, 3))
sketch2.addConstraint(Sketcher.Constraint("Symmetric", 0, 3, 1, 3, -1, 1))
sketch2.addConstraint(Sketcher.Constraint("Symmetric", 2, 3, 3, 3, -1, 1))
sketch2.addConstraint(Sketcher.Constraint("Diameter", 0, 4.0))
sketch2.addConstraint(Sketcher.Constraint("DistanceY", -1, 1, 0, 3, 27.95238))
sketch2.addConstraint(Sketcher.Constraint("DistanceX", -1, 1, 2, 3, 27.95238))
sketch2.addConstraint(Sketcher.Constraint("DistanceX", 0, 3, 1, 3, 11.120148))
sketch2.addConstraint(Sketcher.Constraint("DistanceY", 3, 3, 2, 3, 11.120148))
pocket1 = body.newObject("PartDesign::Pocket", "Pocket")
pocket1.Profile = sketch2
pocket1.Length = 6

doc.recompute()
